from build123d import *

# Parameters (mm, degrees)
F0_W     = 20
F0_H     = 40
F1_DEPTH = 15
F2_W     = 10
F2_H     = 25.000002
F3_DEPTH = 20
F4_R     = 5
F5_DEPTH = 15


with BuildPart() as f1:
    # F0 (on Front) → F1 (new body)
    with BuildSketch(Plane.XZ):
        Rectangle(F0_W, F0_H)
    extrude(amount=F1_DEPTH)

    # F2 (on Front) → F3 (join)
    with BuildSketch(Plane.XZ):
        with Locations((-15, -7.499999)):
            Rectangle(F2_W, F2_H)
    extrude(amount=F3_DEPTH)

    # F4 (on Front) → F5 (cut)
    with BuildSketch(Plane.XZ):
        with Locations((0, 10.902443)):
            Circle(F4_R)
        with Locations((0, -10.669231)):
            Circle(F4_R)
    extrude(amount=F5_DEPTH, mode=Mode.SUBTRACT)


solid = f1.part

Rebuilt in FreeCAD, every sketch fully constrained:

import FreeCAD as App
import Part
import Sketcher
from FreeCAD import Vector

doc = App.newDocument("Part")
body = doc.addObject("PartDesign::Body", "Body")

# Sketch on XZ plane
sketch1 = body.newObject("Sketcher::SketchObject", "Sketch")
sketch1.AttachmentSupport = (doc.getObject("XZ_Plane"), [""])
sketch1.MapMode = "FlatFace"
sketch1.addGeometry([
    Part.LineSegment(Vector(-10, 20, 0), Vector(-10, -20, 0)),
    Part.LineSegment(Vector(-10, -20, 0), Vector(10, -20, 0)),
    Part.LineSegment(Vector(10, -20, 0), Vector(10, 20, 0)),
    Part.LineSegment(Vector(10, 20, 0), Vector(-10, 20, 0)),
], False)
sketch1.addConstraint([
    Sketcher.Constraint("Coincident", 0, 2, 1, 1),
    Sketcher.Constraint("Coincident", 1, 2, 2, 1),
    Sketcher.Constraint("Coincident", 2, 2, 3, 1),
    Sketcher.Constraint("Coincident", 3, 2, 0, 1),
    Sketcher.Constraint("Vertical", 0),
    Sketcher.Constraint("Horizontal", 1),
    Sketcher.Constraint("Vertical", 2),
    Sketcher.Constraint("Horizontal", 3),
    Sketcher.Constraint("Symmetric", 0, 2, 2, 2, -1, 1),
    Sketcher.Constraint("DistanceX", 1, 1, 1, 2, 20.0),
    Sketcher.Constraint("DistanceY", 0, 2, 0, 1, 40.0),
])
pad1 = body.newObject("PartDesign::Pad", "Pad")
pad1.Profile = sketch1
pad1.Length = 15

# Sketch on XZ plane
sketch2 = body.newObject("Sketcher::SketchObject", "Sketch001")
sketch2.AttachmentSupport = (doc.getObject("XZ_Plane"), [""])
sketch2.MapMode = "FlatFace"
sketch2.addGeometry([
    Part.LineSegment(Vector(-20, 5.000002, 0), Vector(-20, -20, 0)),
    Part.LineSegment(Vector(-20, -20, 0), Vector(-10, -20, 0)),
    Part.LineSegment(Vector(-10, -20, 0), Vector(-10, 5.000002, 0)),
    Part.LineSegment(Vector(-10, 5.000002, 0), Vector(-20, 5.000002, 0)),
], False)
sketch2.addConstraint([
    Sketcher.Constraint("Coincident", 0, 2, 1, 1),
    Sketcher.Constraint("Coincident", 1, 2, 2, 1),
    Sketcher.Constraint("Coincident", 2, 2, 3, 1),
    Sketcher.Constraint("Coincident", 3, 2, 0, 1),
    Sketcher.Constraint("Vertical", 0),
    Sketcher.Constraint("Horizontal", 1),
    Sketcher.Constraint("Vertical", 2),
    Sketcher.Constraint("Horizontal", 3),
    Sketcher.Constraint("DistanceX", 1, 1, 1, 2, 10.0),
    Sketcher.Constraint("DistanceX", 0, 2, -1, 1, 20.0),
    Sketcher.Constraint("DistanceY", 0, 2, -1, 1, 20.0),
    Sketcher.Constraint("DistanceY", 0, 2, 0, 1, 25.000002),
])
pad2 = body.newObject("PartDesign::Pad", "Pad001")
pad2.Profile = sketch2
pad2.Length = 20

# Sketch on XZ plane
sketch3 = body.newObject("Sketcher::SketchObject", "Sketch002")
sketch3.AttachmentSupport = (doc.getObject("XZ_Plane"), [""])
sketch3.MapMode = "FlatFace"
sketch3.addGeometry([
    Part.Circle(Vector(0, 10.902443, 0), Vector(0, 0, 1), 5),
    Part.Circle(Vector(0, -10.669231, 0), Vector(0, 0, 1), 5),
], False)
sketch3.addConstraint([
    Sketcher.Constraint("Equal", 0, 1),
    Sketcher.Constraint("PointOnObject", 0, 3, -2),
    Sketcher.Constraint("PointOnObject", 1, 3, -2),
    Sketcher.Constraint("Diameter", 0, 10.0),
    Sketcher.Constraint("DistanceY", 1, 3, -1, 1, 10.669231),
    Sketcher.Constraint("DistanceY", -1, 1, 0, 3, 10.902443),
])
pocket1 = body.newObject("PartDesign::Pocket", "Pocket")
pocket1.Profile = sketch3
pocket1.Length = 15
pocket1.Reversed = True

doc.recompute()
